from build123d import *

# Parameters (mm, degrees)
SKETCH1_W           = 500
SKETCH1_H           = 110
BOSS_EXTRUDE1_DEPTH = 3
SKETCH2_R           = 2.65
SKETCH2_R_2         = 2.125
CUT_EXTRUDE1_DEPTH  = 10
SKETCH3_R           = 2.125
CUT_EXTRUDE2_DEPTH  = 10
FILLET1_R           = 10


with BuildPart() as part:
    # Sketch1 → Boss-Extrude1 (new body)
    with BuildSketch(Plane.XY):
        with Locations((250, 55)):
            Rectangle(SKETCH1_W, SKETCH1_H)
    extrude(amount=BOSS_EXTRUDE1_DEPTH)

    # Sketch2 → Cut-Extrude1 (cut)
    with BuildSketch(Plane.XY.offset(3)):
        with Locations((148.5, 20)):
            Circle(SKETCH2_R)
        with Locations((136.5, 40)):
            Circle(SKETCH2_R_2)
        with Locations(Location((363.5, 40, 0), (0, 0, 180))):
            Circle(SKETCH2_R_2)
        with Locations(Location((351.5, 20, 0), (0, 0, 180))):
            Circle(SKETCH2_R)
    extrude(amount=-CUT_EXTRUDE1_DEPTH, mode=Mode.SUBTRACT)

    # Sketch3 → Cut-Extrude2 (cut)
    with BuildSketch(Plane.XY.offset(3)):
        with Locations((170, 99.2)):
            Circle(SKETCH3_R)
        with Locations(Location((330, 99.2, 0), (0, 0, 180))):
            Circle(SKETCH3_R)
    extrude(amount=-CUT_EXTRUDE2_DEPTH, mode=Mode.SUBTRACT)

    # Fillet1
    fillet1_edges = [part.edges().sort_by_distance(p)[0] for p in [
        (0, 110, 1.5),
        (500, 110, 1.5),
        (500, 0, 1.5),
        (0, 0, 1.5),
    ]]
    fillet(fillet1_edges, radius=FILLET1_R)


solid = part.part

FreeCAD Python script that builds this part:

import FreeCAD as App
import Part
import Sketcher

V = App.Vector
Q = App.Units.Quantity


def edges_at(feature, points):
    """Names of the edges that pass closest to the given points."""
    edges = feature.Shape.Edges
    near = lambda p: min(range(len(edges)), key=lambda i: edges[i].distToShape(Part.Vertex(*p))[0])
    return sorted({f"Edge{near(p) + 1}" for p in points})


def add_polygon(sketch, points):
    """Adds a closed chain of lines whose ends are joined by coincident constraints."""
    first, n = sketch.GeometryCount, len(points)
    for a, b in zip(points, points[1:] + points[:1]):
        sketch.addGeometry(Part.LineSegment(App.Vector(*a, 0), App.Vector(*b, 0)), False)
    for i in range(n):
        sketch.addConstraint(Sketcher.Constraint("Coincident", first + i, 2, first + (i + 1) % n, 1))

doc = App.newDocument("Part")
params = doc.addObject("Spreadsheet::Sheet", "Params")
for row, (alias, value) in enumerate([
    ("sketch1_width", "500 mm"),
    ("sketch1_height", "110 mm"),
    ("pad1_length", "3 mm"),
    ("sketch2_diameter", "5.3 mm"),
    ("sketch2_diameter2", "4.25 mm"),
    ("pocket1_length", "10 mm"),
    ("sketch3_diameter", "4.25 mm"),
    ("pocket2_length", "10 mm"),
    ("fillet_radius", "10 mm"),
], start=1):
    params.set(f"A{row}", alias)
    params.set(f"B{row}", "=" + value)
    params.setAlias(f"B{row}", alias)

body = doc.addObject("PartDesign::Body", "Body")

sketch1 = body.newObject("Sketcher::SketchObject", "Sketch")
sketch1.AttachmentSupport = (doc.getObject("XY_Plane"), [""])
sketch1.MapMode = "FlatFace"
add_polygon(sketch1, [(0, 110), (0, 0), (500, 0), (500, 110)])
sketch1.addConstraint(Sketcher.Constraint("Vertical", 0))
sketch1.addConstraint(Sketcher.Constraint("Horizontal", 1))
sketch1.addConstraint(Sketcher.Constraint("Vertical", 2))
sketch1.addConstraint(Sketcher.Constraint("Horizontal", 3))
sketch1.addConstraint(Sketcher.Constraint("Coincident", 0, 2, -1, 1))
sketch1.addConstraint(Sketcher.Constraint("DistanceX", 1, 1, 1, 2, Q("500 mm")))
sketch1.addConstraint(Sketcher.Constraint("DistanceY", 0, 2, 0, 1, Q("110 mm")))
sketch1.setExpression("Constraints[9]", "Params.sketch1_width")
sketch1.setExpression("Constraints[10]", "Params.sketch1_height")
pad1 = body.newObject("PartDesign::Pad", "Pad")
pad1.Profile = sketch1
pad1.setExpression("Length", "Params.pad1_length")

sketch2 = body.newObject("Sketcher::SketchObject", "Sketch001")
sketch2.AttachmentSupport = (doc.getObject("XY_Plane"), [""])
sketch2.MapMode = "FlatFace"
sketch2.AttachmentOffset = App.Placement(V(0, 0, 3), App.Rotation())
sketch2.addGeometry(Part.Circle(V(148.5, 20, 0), V(0, 0, 1), 2.6), False)
sketch2.addGeometry(Part.Circle(V(136.5, 40, 0), V(0, 0, 1), 2.1), False)
sketch2.addGeometry(Part.Circle(V(363.5, 40, 0), V(0, 0, 1), 2.1), False)
sketch2.addGeometry(Part.Circle(V(351.5, 20, 0), V(0, 0, 1), 2.6), False)
sketch2.addConstraint(Sketcher.Constraint("Equal", 1, 2))
sketch2.addConstraint(Sketcher.Constraint("Equal", 0, 3))
sketch2.addConstraint(Sketcher.Constraint("Horizontal", 1, 3, 2, 3))
sketch2.addConstraint(Sketcher.Constraint("Horizontal", 0, 3, 3, 3))
sketch2.addConstraint(Sketcher.Constraint("Diameter", 0, Q("5.3 mm")))
sketch2.addConstraint(Sketcher.Constraint("Diameter", 1, Q("4.25 mm")))
sketch2.addConstraint(Sketcher.Constraint("DistanceY", -1, 1, 0, 3, Q("20 mm")))
sketch2.addConstraint(Sketcher.Constraint("DistanceY", -1, 1, 1, 3, Q("40 mm")))
sketch2.addConstraint(Sketcher.Constraint("DistanceX", 1, 3, 0, 3, Q("12 mm")))
sketch2.addConstraint(Sketcher.Constraint("DistanceX", 0, 3, 2, 3, Q("215 mm")))
sketch2.addConstraint(Sketcher.Constraint("DistanceX", 3, 3, 2, 3, Q("12 mm")))
sketch2.addConstraint(Sketcher.Constraint("DistanceX", -1, 1, 0, 3, Q("148.5 mm")))
sketch2.setExpression("Constraints[4]", "Params.sketch2_diameter")
sketch2.setExpression("Constraints[5]", "Params.sketch2_diameter2")
pocket1 = body.newObject("PartDesign::Pocket", "Pocket")
pocket1.Profile = sketch2
pocket1.setExpression("Length", "Params.pocket1_length")

sketch3 = body.newObject("Sketcher::SketchObject", "Sketch002")
sketch3.AttachmentSupport = (doc.getObject("XY_Plane"), [""])
sketch3.MapMode = "FlatFace"
sketch3.AttachmentOffset = App.Placement(V(0, 0, 3), App.Rotation())
sketch3.addGeometry(Part.Circle(V(170, 99.2, 0), V(0, 0, 1), 2.1), False)
sketch3.addGeometry(Part.Circle(V(330, 99.2, 0), V(0, 0, 1), 2.1), False)
sketch3.addConstraint(Sketcher.Constraint("Equal", 0, 1))
sketch3.addConstraint(Sketcher.Constraint("Horizontal", 0, 3, 1, 3))
sketch3.addConstraint(Sketcher.Constraint("Diameter", 0, Q("4.25 mm")))
sketch3.addConstraint(Sketcher.Constraint("DistanceX", -1, 1, 0, 3, Q("170 mm")))
sketch3.addConstraint(Sketcher.Constraint("DistanceX", -1, 1, 1, 3, Q("330 mm")))
sketch3.addConstraint(Sketcher.Constraint("DistanceY", -1, 1, 0, 3, Q("99.2 mm")))
sketch3.setExpression("Constraints[2]", "Params.sketch3_diameter")
pocket2 = body.newObject("PartDesign::Pocket", "Pocket001")
pocket2.Profile = sketch3
pocket2.setExpression("Length", "Params.pocket2_length")
doc.recompute()

fillet = body.newObject("PartDesign::Fillet", "Fillet")
fillet.Base = (pocket2, edges_at(pocket2, [
    (0, 110, 1.5),
    (500, 110, 1.5),
    (500, 0, 1.5),
    (0, 0, 1.5),
]))
fillet.setExpression("Radius", "Params.fillet_radius")

doc.recompute()
